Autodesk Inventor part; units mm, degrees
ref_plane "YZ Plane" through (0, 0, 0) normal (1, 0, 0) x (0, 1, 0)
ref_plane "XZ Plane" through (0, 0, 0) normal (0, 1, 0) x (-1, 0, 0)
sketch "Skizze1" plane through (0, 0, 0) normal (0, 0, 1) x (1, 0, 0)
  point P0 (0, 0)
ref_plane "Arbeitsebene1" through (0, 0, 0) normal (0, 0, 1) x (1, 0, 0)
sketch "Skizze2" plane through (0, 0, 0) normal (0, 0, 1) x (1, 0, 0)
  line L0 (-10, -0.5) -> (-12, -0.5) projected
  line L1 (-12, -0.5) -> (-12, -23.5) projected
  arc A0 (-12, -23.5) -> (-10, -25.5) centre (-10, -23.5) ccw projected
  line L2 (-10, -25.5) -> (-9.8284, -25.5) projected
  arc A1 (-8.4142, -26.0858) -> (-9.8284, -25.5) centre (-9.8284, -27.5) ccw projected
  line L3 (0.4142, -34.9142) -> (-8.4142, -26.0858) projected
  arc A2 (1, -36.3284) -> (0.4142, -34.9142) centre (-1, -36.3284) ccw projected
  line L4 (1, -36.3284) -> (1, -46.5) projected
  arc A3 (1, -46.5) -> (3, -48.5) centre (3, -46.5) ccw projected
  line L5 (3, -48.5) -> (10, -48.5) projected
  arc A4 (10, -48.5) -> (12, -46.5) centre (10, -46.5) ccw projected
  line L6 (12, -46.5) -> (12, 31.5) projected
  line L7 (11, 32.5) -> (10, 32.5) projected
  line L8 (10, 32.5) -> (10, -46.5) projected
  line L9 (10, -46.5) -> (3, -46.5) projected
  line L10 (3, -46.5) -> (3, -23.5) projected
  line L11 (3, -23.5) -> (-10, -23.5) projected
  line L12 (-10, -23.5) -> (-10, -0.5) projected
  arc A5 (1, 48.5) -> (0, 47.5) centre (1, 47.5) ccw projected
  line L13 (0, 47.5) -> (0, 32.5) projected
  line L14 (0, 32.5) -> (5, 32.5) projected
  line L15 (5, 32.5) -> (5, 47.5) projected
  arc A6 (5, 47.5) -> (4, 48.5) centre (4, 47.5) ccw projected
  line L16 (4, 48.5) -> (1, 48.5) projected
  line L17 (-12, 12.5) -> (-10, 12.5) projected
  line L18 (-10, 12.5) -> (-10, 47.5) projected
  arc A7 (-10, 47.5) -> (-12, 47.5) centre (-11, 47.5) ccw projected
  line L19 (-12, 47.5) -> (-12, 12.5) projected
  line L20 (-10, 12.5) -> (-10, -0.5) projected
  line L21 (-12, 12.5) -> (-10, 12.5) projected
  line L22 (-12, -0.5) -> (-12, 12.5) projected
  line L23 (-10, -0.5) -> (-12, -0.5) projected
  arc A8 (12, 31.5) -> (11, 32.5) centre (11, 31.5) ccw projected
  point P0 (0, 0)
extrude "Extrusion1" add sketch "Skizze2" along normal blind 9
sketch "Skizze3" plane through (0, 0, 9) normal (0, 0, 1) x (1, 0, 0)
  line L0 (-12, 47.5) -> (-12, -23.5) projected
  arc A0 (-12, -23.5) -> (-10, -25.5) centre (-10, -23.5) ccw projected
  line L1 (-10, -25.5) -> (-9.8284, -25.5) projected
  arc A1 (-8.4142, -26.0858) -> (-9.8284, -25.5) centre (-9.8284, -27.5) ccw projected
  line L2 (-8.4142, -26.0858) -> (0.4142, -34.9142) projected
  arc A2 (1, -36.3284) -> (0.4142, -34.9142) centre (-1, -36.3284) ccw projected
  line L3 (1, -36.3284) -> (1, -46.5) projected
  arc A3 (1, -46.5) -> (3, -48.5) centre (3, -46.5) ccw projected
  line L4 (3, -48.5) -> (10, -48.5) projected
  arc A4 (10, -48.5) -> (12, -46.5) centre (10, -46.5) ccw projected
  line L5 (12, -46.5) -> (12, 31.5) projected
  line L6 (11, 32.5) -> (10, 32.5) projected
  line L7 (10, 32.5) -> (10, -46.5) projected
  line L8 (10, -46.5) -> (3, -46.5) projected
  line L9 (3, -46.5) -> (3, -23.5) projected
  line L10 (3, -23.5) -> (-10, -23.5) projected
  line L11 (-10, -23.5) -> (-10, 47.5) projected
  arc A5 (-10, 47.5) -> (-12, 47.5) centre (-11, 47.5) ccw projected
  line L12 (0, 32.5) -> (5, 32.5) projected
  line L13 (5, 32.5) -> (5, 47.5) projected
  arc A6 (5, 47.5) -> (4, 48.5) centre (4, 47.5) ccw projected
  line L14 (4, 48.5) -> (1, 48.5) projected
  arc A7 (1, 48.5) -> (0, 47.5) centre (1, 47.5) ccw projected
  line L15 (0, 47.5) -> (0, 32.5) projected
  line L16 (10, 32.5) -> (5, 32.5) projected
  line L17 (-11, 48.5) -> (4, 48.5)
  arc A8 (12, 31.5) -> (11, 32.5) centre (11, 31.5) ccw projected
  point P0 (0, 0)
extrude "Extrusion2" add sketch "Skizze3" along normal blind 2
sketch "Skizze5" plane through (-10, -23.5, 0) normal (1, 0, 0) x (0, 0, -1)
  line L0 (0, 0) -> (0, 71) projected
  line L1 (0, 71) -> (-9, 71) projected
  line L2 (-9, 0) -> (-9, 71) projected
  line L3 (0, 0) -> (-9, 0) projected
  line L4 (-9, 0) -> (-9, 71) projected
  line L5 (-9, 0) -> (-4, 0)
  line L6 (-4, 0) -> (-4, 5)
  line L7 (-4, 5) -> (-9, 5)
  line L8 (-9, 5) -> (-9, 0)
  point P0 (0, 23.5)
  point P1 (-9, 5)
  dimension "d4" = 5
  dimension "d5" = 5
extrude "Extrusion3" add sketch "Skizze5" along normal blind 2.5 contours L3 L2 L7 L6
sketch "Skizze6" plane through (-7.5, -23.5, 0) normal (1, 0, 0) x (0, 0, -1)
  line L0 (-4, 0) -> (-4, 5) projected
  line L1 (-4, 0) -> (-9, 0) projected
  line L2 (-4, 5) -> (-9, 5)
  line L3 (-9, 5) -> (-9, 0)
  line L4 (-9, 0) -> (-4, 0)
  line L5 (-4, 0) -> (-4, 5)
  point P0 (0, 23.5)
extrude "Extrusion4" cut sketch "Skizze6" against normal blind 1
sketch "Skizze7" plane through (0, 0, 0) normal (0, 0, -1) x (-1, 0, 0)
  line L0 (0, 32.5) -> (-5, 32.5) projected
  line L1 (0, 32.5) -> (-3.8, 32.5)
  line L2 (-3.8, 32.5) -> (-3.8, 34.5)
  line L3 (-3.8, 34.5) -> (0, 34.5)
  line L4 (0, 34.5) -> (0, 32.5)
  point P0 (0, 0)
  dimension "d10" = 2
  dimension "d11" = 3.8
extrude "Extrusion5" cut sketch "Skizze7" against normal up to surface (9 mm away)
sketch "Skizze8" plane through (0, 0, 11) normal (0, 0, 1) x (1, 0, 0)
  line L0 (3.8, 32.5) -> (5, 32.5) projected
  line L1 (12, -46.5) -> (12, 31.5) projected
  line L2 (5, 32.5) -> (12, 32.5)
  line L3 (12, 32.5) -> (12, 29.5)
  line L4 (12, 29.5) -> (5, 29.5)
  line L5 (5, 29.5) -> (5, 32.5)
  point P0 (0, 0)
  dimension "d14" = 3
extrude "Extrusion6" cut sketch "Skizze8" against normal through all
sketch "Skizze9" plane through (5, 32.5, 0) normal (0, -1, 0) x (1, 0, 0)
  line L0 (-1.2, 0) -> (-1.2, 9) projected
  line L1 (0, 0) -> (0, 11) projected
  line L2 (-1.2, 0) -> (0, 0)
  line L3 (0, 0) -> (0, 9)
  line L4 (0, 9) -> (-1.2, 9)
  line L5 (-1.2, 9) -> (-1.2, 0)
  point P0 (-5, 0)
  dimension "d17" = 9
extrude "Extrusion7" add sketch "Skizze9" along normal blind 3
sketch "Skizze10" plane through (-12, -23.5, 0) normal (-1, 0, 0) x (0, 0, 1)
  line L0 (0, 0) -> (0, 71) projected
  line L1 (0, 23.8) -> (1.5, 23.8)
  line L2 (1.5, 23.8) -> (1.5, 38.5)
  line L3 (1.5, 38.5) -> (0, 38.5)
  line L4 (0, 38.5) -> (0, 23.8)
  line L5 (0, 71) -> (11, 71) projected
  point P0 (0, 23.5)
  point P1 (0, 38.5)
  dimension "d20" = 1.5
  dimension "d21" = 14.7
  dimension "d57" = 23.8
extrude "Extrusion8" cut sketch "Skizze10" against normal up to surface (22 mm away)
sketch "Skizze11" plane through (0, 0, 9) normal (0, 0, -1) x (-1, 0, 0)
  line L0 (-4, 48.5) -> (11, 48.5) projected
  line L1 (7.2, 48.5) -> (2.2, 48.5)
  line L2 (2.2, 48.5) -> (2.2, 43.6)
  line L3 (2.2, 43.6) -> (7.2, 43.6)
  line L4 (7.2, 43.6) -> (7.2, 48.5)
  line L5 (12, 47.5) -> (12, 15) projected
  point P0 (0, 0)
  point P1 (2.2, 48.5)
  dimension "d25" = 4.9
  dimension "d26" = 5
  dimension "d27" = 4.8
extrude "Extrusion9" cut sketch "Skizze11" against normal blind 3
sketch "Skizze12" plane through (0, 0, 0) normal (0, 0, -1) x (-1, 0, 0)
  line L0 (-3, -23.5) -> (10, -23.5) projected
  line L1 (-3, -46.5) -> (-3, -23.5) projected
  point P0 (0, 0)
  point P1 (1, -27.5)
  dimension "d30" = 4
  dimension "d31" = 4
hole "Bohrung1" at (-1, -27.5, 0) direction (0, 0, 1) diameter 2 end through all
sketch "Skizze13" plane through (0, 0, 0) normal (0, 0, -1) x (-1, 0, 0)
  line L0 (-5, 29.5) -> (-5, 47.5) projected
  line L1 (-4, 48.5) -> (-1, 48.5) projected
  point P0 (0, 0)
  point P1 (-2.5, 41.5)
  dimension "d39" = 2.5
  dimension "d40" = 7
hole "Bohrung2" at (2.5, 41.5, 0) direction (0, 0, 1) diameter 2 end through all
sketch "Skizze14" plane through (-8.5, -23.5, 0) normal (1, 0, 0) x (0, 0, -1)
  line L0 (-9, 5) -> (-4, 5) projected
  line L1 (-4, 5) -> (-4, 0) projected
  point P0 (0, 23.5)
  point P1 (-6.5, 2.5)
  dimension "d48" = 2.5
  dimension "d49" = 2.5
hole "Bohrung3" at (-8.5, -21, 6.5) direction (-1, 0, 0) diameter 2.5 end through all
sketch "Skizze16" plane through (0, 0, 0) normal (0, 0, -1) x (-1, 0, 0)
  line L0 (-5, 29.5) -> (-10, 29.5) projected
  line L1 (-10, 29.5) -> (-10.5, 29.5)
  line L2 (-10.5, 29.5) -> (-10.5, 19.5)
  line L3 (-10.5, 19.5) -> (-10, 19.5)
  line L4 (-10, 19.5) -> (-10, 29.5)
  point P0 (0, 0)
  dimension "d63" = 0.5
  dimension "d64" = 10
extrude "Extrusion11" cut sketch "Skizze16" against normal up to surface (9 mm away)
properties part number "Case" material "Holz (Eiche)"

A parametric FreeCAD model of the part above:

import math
import FreeCAD as App
import Part
import Sketcher

V = App.Vector
Q = App.Units.Quantity


def add_polygon(sketch, points):
    """Adds a closed chain of lines whose ends are joined by coincident constraints."""
    first, n = sketch.GeometryCount, len(points)
    for a, b in zip(points, points[1:] + points[:1]):
        sketch.addGeometry(Part.LineSegment(App.Vector(*a, 0), App.Vector(*b, 0)), False)
    for i in range(n):
        sketch.addConstraint(Sketcher.Constraint("Coincident", first + i, 2, first + (i + 1) % n, 1))

doc = App.newDocument("Part")
body = doc.addObject("PartDesign::Body", "Body")
body.AllowCompound = True

# Sketch on XY plane
sketch1 = doc.addObject("Sketcher::SketchObject", "Sketch")
body.addObject(sketch1)
sketch1.AttachmentSupport = (doc.XY_Plane, [""])
sketch1.MapMode = "FlatFace"
sketch1.addGeometry([
    Part.LineSegment(V(-10, -23.5, 0), V(-10, 47.5, 0)),  # 0
    Part.ArcOfCircle(Part.Circle(V(-11, 47.5, 0), V(0, 0, 1), 1), math.radians(0), math.radians(180)),  # 1
    Part.LineSegment(V(-12, 47.5, 0), V(-12, -23.5, 0)),  # 2
    Part.ArcOfCircle(Part.Circle(V(-10, -23.5, 0), V(0, 0, 1), 2), math.radians(180), math.radians(270)),  # 3
    Part.LineSegment(V(-10, -25.5, 0), V(-9.83, -25.5, 0)),  # 4
    Part.ArcOfCircle(Part.Circle(V(-9.83, -27.5, 0), V(0, 0, 1), 2), math.radians(45), math.radians(90)),  # 5
    Part.LineSegment(V(-8.41, -26.09, 0), V(0.41, -34.91, 0)),  # 6
    Part.ArcOfCircle(Part.Circle(V(-1, -36.33, 0), V(0, 0, 1), 2), math.radians(0), math.radians(45)),  # 7
    Part.LineSegment(V(1, -36.33, 0), V(1, -46.5, 0)),  # 8
    Part.ArcOfCircle(Part.Circle(V(3, -46.5, 0), V(0, 0, 1), 2), math.radians(180), math.radians(270)),  # 9
    Part.LineSegment(V(3, -48.5, 0), V(10, -48.5, 0)),  # 10
    Part.ArcOfCircle(Part.Circle(V(10, -46.5, 0), V(0, 0, 1), 2), math.radians(-90), math.radians(0)),  # 11
    Part.LineSegment(V(12, -46.5, 0), V(12, 31.5, 0)),  # 12
    Part.ArcOfCircle(Part.Circle(V(11, 31.5, 0), V(0, 0, 1), 1), math.radians(0), math.radians(90)),  # 13
    Part.LineSegment(V(11, 32.5, 0), V(10, 32.5, 0)),  # 14
    Part.LineSegment(V(10, 32.5, 0), V(10, -46.5, 0)),  # 15
    Part.LineSegment(V(10, -46.5, 0), V(3, -46.5, 0)),  # 16
    Part.LineSegment(V(3, -46.5, 0), V(3, -23.5, 0)),  # 17
    Part.LineSegment(V(3, -23.5, 0), V(-10, -23.5, 0)),  # 18
    Part.LineSegment(V(4, 48.5, 0), V(1, 48.5, 0)),  # 19
    Part.ArcOfCircle(Part.Circle(V(1, 47.5, 0), V(0, 0, 1), 1), math.radians(90), math.radians(180)),  # 20
    Part.LineSegment(V(0, 47.5, 0), V(0, 32.5, 0)),  # 21
    Part.LineSegment(V(0, 32.5, 0), V(5, 32.5, 0)),  # 22
    Part.LineSegment(V(5, 32.5, 0), V(5, 47.5, 0)),  # 23
    Part.ArcOfCircle(Part.Circle(V(4, 47.5, 0), V(0, 0, 1), 1), math.radians(0), math.radians(90)),  # 24
], False)
sketch1.addConstraint([
    Sketcher.Constraint("Tangent", 0, 2, 1, 1),
    Sketcher.Constraint("Tangent", 1, 2, 2, 1),
    Sketcher.Constraint("Tangent", 2, 2, 3, 1),
    Sketcher.Constraint("Tangent", 3, 2, 4, 1),
    Sketcher.Constraint("Tangent", 4, 2, 5, 2),
    Sketcher.Constraint("Tangent", 5, 1, 6, 1),
    Sketcher.Constraint("Tangent", 6, 2, 7, 2),
    Sketcher.Constraint("Tangent", 7, 1, 8, 1),
    Sketcher.Constraint("Tangent", 8, 2, 9, 1),
    Sketcher.Constraint("Tangent", 9, 2, 10, 1),
    Sketcher.Constraint("Tangent", 10, 2, 11, 1),
    Sketcher.Constraint("Tangent", 11, 2, 12, 1),
    Sketcher.Constraint("Tangent", 12, 2, 13, 1),
    Sketcher.Constraint("Tangent", 13, 2, 14, 1),
    Sketcher.Constraint("Coincident", 14, 2, 15, 1),
    Sketcher.Constraint("Coincident", 15, 2, 16, 1),
    Sketcher.Constraint("Coincident", 16, 2, 17, 1),
    Sketcher.Constraint("Coincident", 17, 2, 18, 1),
    Sketcher.Constraint("Coincident", 18, 2, 0, 1),
    Sketcher.Constraint("Tangent", 19, 2, 20, 1),
    Sketcher.Constraint("Tangent", 20, 2, 21, 1),
    Sketcher.Constraint("Coincident", 21, 2, 22, 1),
    Sketcher.Constraint("Coincident", 22, 2, 23, 1),
    Sketcher.Constraint("Tangent", 23, 2, 24, 1),
    Sketcher.Constraint("Tangent", 24, 2, 19, 1),
    Sketcher.Constraint("Vertical", 0),
    Sketcher.Constraint("Vertical", 2),
    Sketcher.Constraint("Horizontal", 4),
    Sketcher.Constraint("Vertical", 8),
    Sketcher.Constraint("Horizontal", 10),
    Sketcher.Constraint("Vertical", 12),
    Sketcher.Constraint("Horizontal", 14),
    Sketcher.Constraint("Vertical", 15),
    Sketcher.Constraint("Horizontal", 16),
    Sketcher.Constraint("Vertical", 17),
    Sketcher.Constraint("Horizontal", 18),
    Sketcher.Constraint("Horizontal", 19),
    Sketcher.Constraint("Vertical", 21),
    Sketcher.Constraint("Horizontal", 22),
    Sketcher.Constraint("Vertical", 23),
    Sketcher.Constraint("Coincident", 15, 2, 11, 3),
    Sketcher.Constraint("Coincident", 16, 2, 9, 3),
    Sketcher.Constraint("Coincident", 18, 2, 3, 3),
    Sketcher.Constraint("Equal", 3, 5),
    Sketcher.Constraint("Equal", 5, 7),
    Sketcher.Constraint("Equal", 7, 9),
    Sketcher.Constraint("Equal", 1, 13),
    Sketcher.Constraint("Equal", 13, 20),
    Sketcher.Constraint("Equal", 20, 24),
    Sketcher.Constraint("PointOnObject", 20, 2, -2),
    Sketcher.Constraint("Horizontal", 1, 3, 20, 3),
    Sketcher.Constraint("Horizontal", 14, 2, 21, 2),
    Sketcher.Constraint("Vertical", 20, 3, 7, 1),
    Sketcher.Constraint("Radius", 1, Q("1 mm")),
    Sketcher.Constraint("DistanceX", 10, 1, 10, 2, Q("7 mm")),
    Sketcher.Constraint("DistanceX", 18, 2, 18, 1, Q("13 mm")),
    Sketcher.Constraint("DistanceX", 19, 2, 19, 1, Q("3 mm")),
    Sketcher.Constraint("DistanceY", 0, 1, 0, 2, Q("71 mm")),
    Sketcher.Constraint("DistanceY", 12, 1, 12, 2, Q("78 mm")),
    Sketcher.Constraint("DistanceY", 17, 1, 17, 2, Q("23 mm")),
    Sketcher.Constraint("Angle", 6, Q("-45 deg")),
    Sketcher.Constraint("DistanceY", -1, 1, 1, 3, Q("47.5 mm")),
    Sketcher.Constraint("DistanceX", 4, 1, 4, 2, Q("0.1716 mm")),
])
pad1 = doc.addObject("PartDesign::Pad", "Pad")
body.addObject(pad1)
pad1.Profile = sketch1
pad1.Length = 9

# Sketch on XY plane
sketch2 = doc.addObject("Sketcher::SketchObject", "Sketch001")
body.addObject(sketch2)
sketch2.AttachmentSupport = (doc.XY_Plane, [""])
sketch2.MapMode = "FlatFace"
sketch2.AttachmentOffset = App.Placement(V(0, 0, 9), App.Rotation())
sketch2.addGeometry([
    Part.ArcOfCircle(Part.Circle(V(-11, 47.5, 0), V(0, 0, 1), 1), math.radians(90), math.radians(180)),  # 0
    Part.LineSegment(V(-12, 47.5, 0), V(-12, -23.5, 0)),  # 1
    Part.ArcOfCircle(Part.Circle(V(-10, -23.5, 0), V(0, 0, 1), 2), math.radians(180), math.radians(270)),  # 2
    Part.LineSegment(V(-10, -25.5, 0), V(-9.83, -25.5, 0)),  # 3
    Part.ArcOfCircle(Part.Circle(V(-9.83, -27.5, 0), V(0, 0, 1), 2), math.radians(45), math.radians(90)),  # 4
    Part.LineSegment(V(-8.41, -26.09, 0), V(0.41, -34.91, 0)),  # 5
    Part.ArcOfCircle(Part.Circle(V(-1, -36.33, 0), V(0, 0, 1), 2), math.radians(0), math.radians(45)),  # 6
    Part.LineSegment(V(1, -36.33, 0), V(1, -46.5, 0)),  # 7
    Part.ArcOfCircle(Part.Circle(V(3, -46.5, 0), V(0, 0, 1), 2), math.radians(180), math.radians(270)),  # 8
    Part.LineSegment(V(3, -48.5, 0), V(10, -48.5, 0)),  # 9
    Part.ArcOfCircle(Part.Circle(V(10, -46.5, 0), V(0, 0, 1), 2), math.radians(-90), math.radians(0)),  # 10
    Part.LineSegment(V(12, -46.5, 0), V(12, 31.5, 0)),  # 11
    Part.ArcOfCircle(Part.Circle(V(11, 31.5, 0), V(0, 0, 1), 1), math.radians(0), math.radians(90)),  # 12
    Part.LineSegment(V(11, 32.5, 0), V(5, 32.5, 0)),  # 13
    Part.LineSegment(V(5, 32.5, 0), V(5, 47.5, 0)),  # 14
    Part.ArcOfCircle(Part.Circle(V(4, 47.5, 0), V(0, 0, 1), 1), math.radians(0), math.radians(90)),  # 15
    Part.LineSegment(V(4, 48.5, 0), V(-11, 48.5, 0)),  # 16
], False)
sketch2.addConstraint([
    Sketcher.Constraint("Tangent", 0, 2, 1, 1),
    Sketcher.Constraint("Tangent", 1, 2, 2, 1),
    Sketcher.Constraint("Tangent", 2, 2, 3, 1),
    Sketcher.Constraint("Tangent", 3, 2, 4, 2),
    Sketcher.Constraint("Tangent", 4, 1, 5, 1),
    Sketcher.Constraint("Tangent", 5, 2, 6, 2),
    Sketcher.Constraint("Tangent", 6, 1, 7, 1),
    Sketcher.Constraint("Tangent", 7, 2, 8, 1),
    Sketcher.Constraint("Tangent", 8, 2, 9, 1),
    Sketcher.Constraint("Tangent", 9, 2, 10, 1),
    Sketcher.Constraint("Tangent", 10, 2, 11, 1),
    Sketcher.Constraint("Tangent", 11, 2, 12, 1),
    Sketcher.Constraint("Tangent", 12, 2, 13, 1),
    Sketcher.Constraint("Coincident", 13, 2, 14, 1),
    Sketcher.Constraint("Tangent", 14, 2, 15, 1),
    Sketcher.Constraint("Tangent", 15, 2, 16, 1),
    Sketcher.Constraint("Tangent", 16, 2, 0, 1),
    Sketcher.Constraint("Vertical", 1),
    Sketcher.Constraint("Horizontal", 3),
    Sketcher.Constraint("Vertical", 7),
    Sketcher.Constraint("Horizontal", 9),
    Sketcher.Constraint("Vertical", 11),
    Sketcher.Constraint("Horizontal", 13),
    Sketcher.Constraint("Vertical", 14),
    Sketcher.Constraint("Horizontal", 16),
    Sketcher.Constraint("Equal", 2, 4),
    Sketcher.Constraint("Equal", 4, 6),
    Sketcher.Constraint("Equal", 6, 8),
    Sketcher.Constraint("Equal", 8, 10),
    Sketcher.Constraint("Equal", 0, 12),
    Sketcher.Constraint("Equal", 12, 15),
    Sketcher.Constraint("Equal", 16, 14),
    Sketcher.Constraint("Radius", 0, Q("1 mm")),
    Sketcher.Constraint("Radius", 2, Q("2 mm")),
    Sketcher.Constraint("DistanceX", 9, 1, 9, 2, Q("7 mm")),
    Sketcher.Constraint("DistanceX", 13, 2, 13, 1, Q("6 mm")),
    Sketcher.Constraint("DistanceX", 16, 2, 16, 1, Q("15 mm")),
    Sketcher.Constraint("DistanceY", 1, 2, 1, 1, Q("71 mm")),
    Sketcher.Constraint("DistanceY", 11, 1, 11, 2, Q("78 mm")),
    Sketcher.Constraint("Angle", 5, Q("-45 deg")),
    Sketcher.Constraint("DistanceX", 0, 3, -1, 1, Q("11 mm")),
    Sketcher.Constraint("DistanceY", -1, 1, 0, 3, Q("47.5 mm")),
    Sketcher.Constraint("DistanceX", 3, 1, 3, 2, Q("0.1716 mm")),
])
pad2 = doc.addObject("PartDesign::Pad", "Pad001")
body.addObject(pad2)
pad2.Profile = sketch2
pad2.Length = 2

# Sketch on YZ plane
sketch3 = doc.addObject("Sketcher::SketchObject", "Sketch002")
body.addObject(sketch3)
sketch3.AttachmentSupport = (doc.YZ_Plane, [""])
sketch3.MapMode = "FlatFace"
sketch3.AttachmentOffset = App.Placement(V(0, 0, -10), App.Rotation())
add_polygon(sketch3, [(-24, 9), (-24, 4), (-18, 4), (-18, 9)])  # lines 0-3
sketch3.addConstraint([
    Sketcher.Constraint("Vertical", 0),
    Sketcher.Constraint("Horizontal", 1),
    Sketcher.Constraint("Vertical", 2),
    Sketcher.Constraint("Horizontal", 3),
    Sketcher.Constraint("Equal", 3, 0),
    Sketcher.Constraint("DistanceX", 1, 1, 1, 2, Q("5 mm")),
    Sketcher.Constraint("DistanceY", -1, 1, 0, 2, Q("4 mm")),
    Sketcher.Constraint("DistanceX", 0, 2, -1, 1, Q("23.5 mm")),
])
pad3 = doc.addObject("PartDesign::Pad", "Pad002")
body.addObject(pad3)
pad3.Profile = sketch3
pad3.Length = 2.5

# Sketch on YZ plane
sketch4 = doc.addObject("Sketcher::SketchObject", "Sketch003")
body.addObject(sketch4)
sketch4.AttachmentSupport = (doc.YZ_Plane, [""])
sketch4.MapMode = "FlatFace"
sketch4.AttachmentOffset = App.Placement(V(0, 0, -7.5), App.Rotation())
add_polygon(sketch4, [(-24, 9), (-24, 4), (-18, 4), (-18, 9)])  # lines 0-3
sketch4.addConstraint([
    Sketcher.Constraint("Vertical", 0),
    Sketcher.Constraint("Horizontal", 1),
    Sketcher.Constraint("Vertical", 2),
    Sketcher.Constraint("Horizontal", 3),
    Sketcher.Constraint("Equal", 3, 0),
    Sketcher.Constraint("DistanceX", 1, 1, 1, 2, Q("5 mm")),
    Sketcher.Constraint("DistanceY", -1, 1, 0, 2, Q("4 mm")),
    Sketcher.Constraint("DistanceX", 0, 2, -1, 1, Q("23.5 mm")),
])
pocket1 = doc.addObject("PartDesign::Pocket", "Pocket")
body.addObject(pocket1)
pocket1.Profile = sketch4
pocket1.Length = 1

# Sketch on XY plane
sketch5 = doc.addObject("Sketcher::SketchObject", "Sketch004")
body.addObject(sketch5)
sketch5.AttachmentSupport = (doc.XY_Plane, [""])
sketch5.MapMode = "FlatFace"
add_polygon(sketch5, [(3.8, 32.5), (0, 32.5), (0, 34.5), (3.8, 34.5)])  # lines 0-3
sketch5.addConstraint([
    Sketcher.Constraint("Horizontal", 0),
    Sketcher.Constraint("Vertical", 1),
    Sketcher.Constraint("Horizontal", 2),
    Sketcher.Constraint("Vertical", 3),
    Sketcher.Constraint("PointOnObject", 0, 2, -2),
    Sketcher.Constraint("DistanceY", 1, 1, 1, 2, Q("2 mm")),
    Sketcher.Constraint("DistanceX", 0, 2, 0, 1, Q("3.8 mm")),
    Sketcher.Constraint("DistanceY", -1, 1, 0, 2, Q("32.5 mm")),
])
pocket2 = doc.addObject("PartDesign::Pocket", "Pocket001")
body.addObject(pocket2)
pocket2.Profile = sketch5
pocket2.Length = 9
pocket2.Reversed = True

# Sketch on XY plane
sketch6 = doc.addObject("Sketcher::SketchObject", "Sketch005")
body.addObject(sketch6)
sketch6.AttachmentSupport = (doc.XY_Plane, [""])
sketch6.MapMode = "FlatFace"
sketch6.AttachmentOffset = App.Placement(V(0, 0, 11), App.Rotation())
add_polygon(sketch6, [(5, 29.5), (12, 29.5), (12, 32.5), (5, 32.5)])  # lines 0-3
sketch6.addConstraint([
    Sketcher.Constraint("Horizontal", 0),
    Sketcher.Constraint("Vertical", 1),
    Sketcher.Constraint("Horizontal", 2),
    Sketcher.Constraint("Vertical", 3),
    Sketcher.Constraint("DistanceY", 1, 1, 1, 2, Q("3 mm")),
    Sketcher.Constraint("DistanceX", 0, 1, 0, 2, Q("7 mm")),
    Sketcher.Constraint("DistanceX", -1, 1, 0, 2, Q("12 mm")),
    Sketcher.Constraint("DistanceY", -1, 1, 0, 2, Q("29.5 mm")),
])
pocket3 = doc.addObject("PartDesign::Pocket", "Pocket002")
body.addObject(pocket3)
pocket3.Profile = sketch6
pocket3.Type = "ThroughAll"

# Sketch on XZ plane
sketch7 = doc.addObject("Sketcher::SketchObject", "Sketch006")
body.addObject(sketch7)
sketch7.AttachmentSupport = (doc.XZ_Plane, [""])
sketch7.MapMode = "FlatFace"
sketch7.AttachmentOffset = App.Placement(V(0, 0, -32.5), App.Rotation())
add_polygon(sketch7, [(3.8, 9), (3.8, 0), (5, 0), (5, 9)])  # lines 0-3
sketch7.addConstraint([
    Sketcher.Constraint("Vertical", 0),
    Sketcher.Constraint("Horizontal", 1),
    Sketcher.Constraint("Vertical", 2),
    Sketcher.Constraint("Horizontal", 3),
    Sketcher.Constraint("PointOnObject", 0, 2, -1),
    Sketcher.Constraint("DistanceY", 0, 2, 0, 1, Q("9 mm")),
    Sketcher.Constraint("DistanceX", 1, 1, 1, 2, Q("1.2 mm")),
    Sketcher.Constraint("DistanceX", -1, 1, 1, 2, Q("5 mm")),
])
pad4 = doc.addObject("PartDesign::Pad", "Pad003")
body.addObject(pad4)
pad4.Profile = sketch7
pad4.Length = 3

# Sketch on YZ plane
sketch8 = doc.addObject("Sketcher::SketchObject", "Sketch007")
body.addObject(sketch8)
sketch8.AttachmentSupport = (doc.YZ_Plane, [""])
sketch8.MapMode = "FlatFace"
sketch8.AttachmentOffset = App.Placement(V(0, 0, -12), App.Rotation())
add_polygon(sketch8, [(15, 0), (0.3, 0), (0.3, 1.5), (15, 1.5)])  # lines 0-3
sketch8.addConstraint([
    Sketcher.Constraint("Horizontal", 0),
    Sketcher.Constraint("Vertical", 1),
    Sketcher.Constraint("Horizontal", 2),
    Sketcher.Constraint("Vertical", 3),
    Sketcher.Constraint("PointOnObject", 0, 2, -1),
    Sketcher.Constraint("DistanceX", 0, 2, 0, 1, Q("14.7 mm")),
    Sketcher.Constraint("DistanceY", 1, 1, 1, 2, Q("1.5 mm")),
    Sketcher.Constraint("DistanceX", -1, 1, 2, 2, Q("15 mm")),
])
pocket4 = doc.addObject("PartDesign::Pocket", "Pocket003")
body.addObject(pocket4)
pocket4.Profile = sketch8
pocket4.Length = 22
pocket4.Reversed = True

# Sketch on XY plane
sketch9 = doc.addObject("Sketcher::SketchObject", "Sketch008")
body.addObject(sketch9)
sketch9.AttachmentSupport = (doc.XY_Plane, [""])
sketch9.MapMode = "FlatFace"
sketch9.AttachmentOffset = App.Placement(V(0, 0, 9), App.Rotation())
add_polygon(sketch9, [(-7.2, 48.5), (-2.2, 48.5), (-2.2, 43.6), (-7.2, 43.6)])  # lines 0-3
sketch9.addConstraint([
    Sketcher.Constraint("Horizontal", 0),
    Sketcher.Constraint("Vertical", 1),
    Sketcher.Constraint("Horizontal", 2),
    Sketcher.Constraint("Vertical", 3),
    Sketcher.Constraint("DistanceX", 0, 1, 0, 2, Q("5 mm")),
    Sketcher.Constraint("DistanceY", 1, 2, 1, 1, Q("4.9 mm")),
    Sketcher.Constraint("DistanceX", 0, 2, -1, 1, Q("2.2 mm")),
    Sketcher.Constraint("DistanceY", -1, 1, 0, 2, Q("48.5 mm")),
])
pocket5 = doc.addObject("PartDesign::Pocket", "Pocket004")
body.addObject(pocket5)
pocket5.Profile = sketch9
pocket5.Length = 3
pocket5.Reversed = True

# Sketch on XY plane
sketch10 = doc.addObject("Sketcher::SketchObject", "Sketch009")
body.addObject(sketch10)
sketch10.AttachmentSupport = (doc.XY_Plane, [""])
sketch10.MapMode = "FlatFace"
sketch10.addGeometry(Part.Circle(V(-1, -27.5, 0), V(0, 0, 1), 1), False)
sketch10.addConstraint([
    Sketcher.Constraint("Diameter", 0, Q("2 mm")),
    Sketcher.Constraint("DistanceX", 0, 3, -1, 1, Q("1 mm")),
    Sketcher.Constraint("DistanceY", 0, 3, -1, 1, Q("27.5 mm")),
])
doc.recompute()
hole = doc.addObject("PartDesign::Hole", "Hole")
body.addObject(hole)
hole.Profile = sketch10
hole.ThreadType = "None"
hole.Diameter = 2
hole.DepthType = "ThroughAll"
hole.Reversed = True

# Sketch on XY plane
sketch11 = doc.addObject("Sketcher::SketchObject", "Sketch010")
body.addObject(sketch11)
sketch11.AttachmentSupport = (doc.XY_Plane, [""])
sketch11.MapMode = "FlatFace"
sketch11.addGeometry(Part.Circle(V(2.5, 41.5, 0), V(0, 0, 1), 1), False)
sketch11.addConstraint([
    Sketcher.Constraint("Diameter", 0, Q("2 mm")),
    Sketcher.Constraint("DistanceX", -1, 1, 0, 3, Q("2.5 mm")),
    Sketcher.Constraint("DistanceY", -1, 1, 0, 3, Q("41.5 mm")),
])
doc.recompute()
hole2 = doc.addObject("PartDesign::Hole", "Hole001")
body.addObject(hole2)
hole2.Profile = sketch11
hole2.ThreadType = "None"
hole2.Diameter = 2
hole2.DepthType = "ThroughAll"
hole2.Reversed = True

# Sketch on YZ plane
sketch12 = doc.addObject("Sketcher::SketchObject", "Sketch011")
body.addObject(sketch12)
sketch12.AttachmentSupport = (doc.YZ_Plane, [""])
sketch12.MapMode = "FlatFace"
sketch12.AttachmentOffset = App.Placement(V(0, 0, -8.5), App.Rotation())
sketch12.addGeometry(Part.Circle(V(-21, 6.5, 0), V(0, 0, 1), 1.2), False)
sketch12.addConstraint([
    Sketcher.Constraint("Diameter", 0, Q("2.5 mm")),
    Sketcher.Constraint("DistanceX", 0, 3, -1, 1, Q("21 mm")),
    Sketcher.Constraint("DistanceY", -1, 1, 0, 3, Q("6.5 mm")),
])
doc.recompute()
hole3 = doc.addObject("PartDesign::Hole", "Hole002")
body.addObject(hole3)
hole3.Profile = sketch12
hole3.ThreadType = "None"
hole3.Diameter = 2.5
hole3.DepthType = "ThroughAll"

# Sketch on XY plane
sketch13 = doc.addObject("Sketcher::SketchObject", "Sketch012")
body.addObject(sketch13)
sketch13.AttachmentSupport = (doc.XY_Plane, [""])
sketch13.MapMode = "FlatFace"
add_polygon(sketch13, [(10, 19.5), (10, 29.5), (10.5, 29.5), (10.5, 19.5)])  # lines 0-3
sketch13.addConstraint([
    Sketcher.Constraint("Vertical", 0),
    Sketcher.Constraint("Horizontal", 1),
    Sketcher.Constraint("Vertical", 2),
    Sketcher.Constraint("Horizontal", 3),
    Sketcher.Constraint("DistanceY", 0, 1, 0, 2, Q("10 mm")),
    Sketcher.Constraint("DistanceX", 1, 1, 1, 2, Q("0.5 mm")),
    Sketcher.Constraint("DistanceX", -1, 1, 0, 2, Q("10 mm")),
    Sketcher.Constraint("DistanceY", -1, 1, 0, 2, Q("29.5 mm")),
])
pocket6 = doc.addObject("PartDesign::Pocket", "Pocket005")
body.addObject(pocket6)
pocket6.Profile = sketch13
pocket6.Length = 9
pocket6.Reversed = True

doc.recompute()
